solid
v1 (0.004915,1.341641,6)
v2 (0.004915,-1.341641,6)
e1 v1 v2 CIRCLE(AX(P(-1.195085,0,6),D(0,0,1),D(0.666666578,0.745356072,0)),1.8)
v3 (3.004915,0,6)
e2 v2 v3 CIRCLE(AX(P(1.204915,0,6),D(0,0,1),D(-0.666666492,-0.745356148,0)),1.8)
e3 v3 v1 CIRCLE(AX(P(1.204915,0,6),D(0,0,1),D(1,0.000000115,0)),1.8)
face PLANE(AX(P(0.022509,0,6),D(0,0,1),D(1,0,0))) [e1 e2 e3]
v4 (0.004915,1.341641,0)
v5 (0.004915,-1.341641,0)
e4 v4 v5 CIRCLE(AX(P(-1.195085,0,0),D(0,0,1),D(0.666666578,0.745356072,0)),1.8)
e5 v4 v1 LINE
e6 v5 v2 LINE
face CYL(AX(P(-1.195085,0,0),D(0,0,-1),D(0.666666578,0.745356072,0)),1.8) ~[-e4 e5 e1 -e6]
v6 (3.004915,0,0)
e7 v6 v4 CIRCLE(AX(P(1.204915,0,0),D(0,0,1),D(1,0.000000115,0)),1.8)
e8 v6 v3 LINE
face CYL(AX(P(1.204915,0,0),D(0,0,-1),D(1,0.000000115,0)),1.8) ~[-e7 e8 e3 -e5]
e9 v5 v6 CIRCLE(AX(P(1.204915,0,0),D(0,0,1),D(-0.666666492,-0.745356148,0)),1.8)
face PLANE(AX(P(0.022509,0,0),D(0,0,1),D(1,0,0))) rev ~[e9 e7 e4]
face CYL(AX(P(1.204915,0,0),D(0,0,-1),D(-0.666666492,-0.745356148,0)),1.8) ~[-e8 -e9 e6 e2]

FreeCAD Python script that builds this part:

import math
import FreeCAD as App
import Part
import Sketcher

V = App.Vector
Q = App.Units.Quantity

doc = App.newDocument("Part")
params = doc.addObject("Spreadsheet::Sheet", "Params")
for row, (alias, value) in enumerate([
    ("sketch1_radius", "1.8 mm"),
    ("pad1_length", "6 mm"),
], start=1):
    params.set(f"A{row}", alias)
    params.set(f"B{row}", "=" + value)
    params.setAlias(f"B{row}", alias)

body = doc.addObject("PartDesign::Body", "Body")

sketch1 = body.newObject("Sketcher::SketchObject", "Sketch")
sketch1.AttachmentSupport = (doc.getObject("XY_Plane"), [""])
sketch1.MapMode = "FlatFace"
sketch1.addGeometry(Part.ArcOfCircle(Part.Circle(V(-1.2, 0, 0), V(0, 0, 1), 1.8), math.radians(48), math.radians(312)), False)
sketch1.addGeometry(Part.ArcOfCircle(Part.Circle(V(1.2, 0, 0), V(0, 0, 1), 1.8), math.radians(-132), math.radians(0)), False)
sketch1.addGeometry(Part.ArcOfCircle(Part.Circle(V(1.2, 0, 0), V(0, 0, 1), 1.8), math.radians(0), math.radians(132)), False)
sketch1.addConstraint(Sketcher.Constraint("Coincident", 0, 2, 1, 1))
sketch1.addConstraint(Sketcher.Constraint("Tangent", 1, 2, 2, 1))
sketch1.addConstraint(Sketcher.Constraint("Coincident", 2, 2, 0, 1))
sketch1.addConstraint(Sketcher.Constraint("Equal", 0, 1))
sketch1.addConstraint(Sketcher.Constraint("Equal", 1, 2))
sketch1.addConstraint(Sketcher.Constraint("Symmetric", 0, 2, 2, 2, -1))
sketch1.addConstraint(Sketcher.Constraint("PointOnObject", 1, 2, -1))
sketch1.addConstraint(Sketcher.Constraint("Radius", 0, Q("1.8 mm")))
sketch1.addConstraint(Sketcher.Constraint("DistanceX", 0, 2, 1, 2, Q("3 mm")))
sketch1.addConstraint(Sketcher.Constraint("DistanceX", 0, 3, -1, 1, Q("1.195085 mm")))
sketch1.setExpression("Constraints[7]", "Params.sketch1_radius")
pad1 = body.newObject("PartDesign::Pad", "Pad")
pad1.Profile = sketch1
pad1.setExpression("Length", "Params.pad1_length")

doc.recompute()
